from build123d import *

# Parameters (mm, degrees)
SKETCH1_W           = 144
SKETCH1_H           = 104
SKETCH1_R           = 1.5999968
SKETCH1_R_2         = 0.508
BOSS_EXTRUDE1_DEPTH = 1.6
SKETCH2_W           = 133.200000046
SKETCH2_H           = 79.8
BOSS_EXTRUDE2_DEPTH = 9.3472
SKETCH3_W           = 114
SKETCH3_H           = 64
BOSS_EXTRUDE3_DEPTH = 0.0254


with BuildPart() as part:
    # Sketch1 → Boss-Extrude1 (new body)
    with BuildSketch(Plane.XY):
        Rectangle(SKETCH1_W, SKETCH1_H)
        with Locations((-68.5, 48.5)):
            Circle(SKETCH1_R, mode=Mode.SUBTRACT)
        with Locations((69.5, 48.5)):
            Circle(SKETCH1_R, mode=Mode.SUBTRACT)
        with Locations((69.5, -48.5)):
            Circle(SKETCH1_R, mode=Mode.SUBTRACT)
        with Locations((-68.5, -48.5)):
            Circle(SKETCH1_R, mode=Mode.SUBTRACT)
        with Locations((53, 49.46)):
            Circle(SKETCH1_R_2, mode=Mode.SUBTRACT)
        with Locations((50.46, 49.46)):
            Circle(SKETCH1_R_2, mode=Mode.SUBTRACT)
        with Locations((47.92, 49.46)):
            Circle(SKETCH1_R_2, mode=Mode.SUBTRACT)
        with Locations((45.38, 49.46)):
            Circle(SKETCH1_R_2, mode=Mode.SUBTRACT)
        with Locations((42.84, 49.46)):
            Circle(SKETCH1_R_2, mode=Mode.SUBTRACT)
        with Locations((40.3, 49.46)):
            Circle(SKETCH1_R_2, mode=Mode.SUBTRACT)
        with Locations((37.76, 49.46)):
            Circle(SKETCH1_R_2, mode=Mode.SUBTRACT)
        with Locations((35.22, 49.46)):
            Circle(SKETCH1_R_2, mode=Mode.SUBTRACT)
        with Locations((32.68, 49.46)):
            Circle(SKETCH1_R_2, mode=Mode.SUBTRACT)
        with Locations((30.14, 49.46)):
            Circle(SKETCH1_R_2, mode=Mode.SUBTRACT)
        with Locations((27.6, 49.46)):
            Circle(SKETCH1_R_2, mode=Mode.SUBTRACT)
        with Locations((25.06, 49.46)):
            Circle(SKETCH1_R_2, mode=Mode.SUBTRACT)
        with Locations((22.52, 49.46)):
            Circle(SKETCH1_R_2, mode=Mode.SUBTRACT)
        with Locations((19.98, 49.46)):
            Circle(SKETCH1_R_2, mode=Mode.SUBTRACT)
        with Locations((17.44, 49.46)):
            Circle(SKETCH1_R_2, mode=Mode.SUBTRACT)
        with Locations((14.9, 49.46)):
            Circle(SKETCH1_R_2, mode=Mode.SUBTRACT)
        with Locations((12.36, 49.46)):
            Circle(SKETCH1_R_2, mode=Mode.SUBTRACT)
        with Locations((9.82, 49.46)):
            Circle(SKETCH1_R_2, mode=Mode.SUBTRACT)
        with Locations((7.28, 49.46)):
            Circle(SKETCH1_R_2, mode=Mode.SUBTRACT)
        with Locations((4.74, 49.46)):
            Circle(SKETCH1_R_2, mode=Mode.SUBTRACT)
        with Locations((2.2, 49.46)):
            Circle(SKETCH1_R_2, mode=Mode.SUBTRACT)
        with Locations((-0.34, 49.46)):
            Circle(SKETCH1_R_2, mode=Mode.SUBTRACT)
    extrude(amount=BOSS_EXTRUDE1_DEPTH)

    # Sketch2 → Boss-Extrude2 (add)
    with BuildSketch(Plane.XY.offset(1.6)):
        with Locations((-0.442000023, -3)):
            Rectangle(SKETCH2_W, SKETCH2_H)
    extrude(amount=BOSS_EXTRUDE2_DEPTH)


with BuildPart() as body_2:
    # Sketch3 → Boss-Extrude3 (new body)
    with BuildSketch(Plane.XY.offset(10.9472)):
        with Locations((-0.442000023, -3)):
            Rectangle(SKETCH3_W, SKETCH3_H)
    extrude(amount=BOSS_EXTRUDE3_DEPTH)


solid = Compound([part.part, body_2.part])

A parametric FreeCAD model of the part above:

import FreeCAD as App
import Part
import Sketcher

doc = App.newDocument("Part")
body = doc.addObject("PartDesign::Body", "Body")

# Sketch on XY plane
sketch1 = body.newObject("Sketcher::SketchObject", "Sketch")
sketch1.AttachmentSupport = (doc.getObject("XY_Plane"), [""])
sketch1.MapMode = "FlatFace"
sketch1.addGeometry([
    Part.LineSegment(App.Vector(-72, 52, 0), App.Vector(-72, -52, 0)),  # 0
    Part.LineSegment(App.Vector(-72, -52, 0), App.Vector(72, -52, 0)),  # 1
    Part.LineSegment(App.Vector(72, -52, 0), App.Vector(72, 52, 0)),  # 2
    Part.LineSegment(App.Vector(72, 52, 0), App.Vector(-72, 52, 0)),  # 3
    Part.Circle(App.Vector(-68.5, -48.5, 0), App.Vector(0, 0, 1), 1.6),  # 4
    Part.Circle(App.Vector(69.5, -48.5, 0), App.Vector(0, 0, 1), 1.6),  # 5
    Part.Circle(App.Vector(-68.5, 48.5, 0), App.Vector(0, 0, 1), 1.6),  # 6
    Part.Circle(App.Vector(-0.3, 49.5, 0), App.Vector(0, 0, 1), 0.5),  # 7
    Part.Circle(App.Vector(2.2, 49.5, 0), App.Vector(0, 0, 1), 0.5),  # 8
    Part.Circle(App.Vector(4.7, 49.5, 0), App.Vector(0, 0, 1), 0.5),  # 9
    Part.Circle(App.Vector(7.3, 49.5, 0), App.Vector(0, 0, 1), 0.5),  # 10
    Part.Circle(App.Vector(9.8, 49.5, 0), App.Vector(0, 0, 1), 0.5),  # 11
    Part.Circle(App.Vector(12.4, 49.5, 0), App.Vector(0, 0, 1), 0.5),  # 12
    Part.Circle(App.Vector(14.9, 49.5, 0), App.Vector(0, 0, 1), 0.5),  # 13
    Part.Circle(App.Vector(17.4, 49.5, 0), App.Vector(0, 0, 1), 0.5),  # 14
    Part.Circle(App.Vector(20, 49.5, 0), App.Vector(0, 0, 1), 0.5),  # 15
    Part.Circle(App.Vector(22.5, 49.5, 0), App.Vector(0, 0, 1), 0.5),  # 16
    Part.Circle(App.Vector(25.1, 49.5, 0), App.Vector(0, 0, 1), 0.5),  # 17
    Part.Circle(App.Vector(27.6, 49.5, 0), App.Vector(0, 0, 1), 0.5),  # 18
    Part.Circle(App.Vector(30.1, 49.5, 0), App.Vector(0, 0, 1), 0.5),  # 19
    Part.Circle(App.Vector(32.7, 49.5, 0), App.Vector(0, 0, 1), 0.5),  # 20
    Part.Circle(App.Vector(35.2, 49.5, 0), App.Vector(0, 0, 1), 0.5),  # 21
    Part.Circle(App.Vector(37.8, 49.5, 0), App.Vector(0, 0, 1), 0.5),  # 22
    Part.Circle(App.Vector(40.3, 49.5, 0), App.Vector(0, 0, 1), 0.5),  # 23
    Part.Circle(App.Vector(42.8, 49.5, 0), App.Vector(0, 0, 1), 0.5),  # 24
    Part.Circle(App.Vector(45.4, 49.5, 0), App.Vector(0, 0, 1), 0.5),  # 25
    Part.Circle(App.Vector(47.9, 49.5, 0), App.Vector(0, 0, 1), 0.5),  # 26
    Part.Circle(App.Vector(50.5, 49.5, 0), App.Vector(0, 0, 1), 0.5),  # 27
    Part.Circle(App.Vector(53, 49.5, 0), App.Vector(0, 0, 1), 0.5),  # 28
    Part.Circle(App.Vector(69.5, 48.5, 0), App.Vector(0, 0, 1), 1.6),  # 29
], False)
sketch1.addConstraint([
    Sketcher.Constraint("Coincident", 0, 2, 1, 1),
    Sketcher.Constraint("Coincident", 1, 2, 2, 1),
    Sketcher.Constraint("Coincident", 2, 2, 3, 1),
    Sketcher.Constraint("Coincident", 3, 2, 0, 1),
    Sketcher.Constraint("Vertical", 0),
    Sketcher.Constraint("Horizontal", 1),
    Sketcher.Constraint("Vertical", 2),
    Sketcher.Constraint("Horizontal", 3),
    Sketcher.Constraint("Equal", 4, 5),
    Sketcher.Constraint("Equal", 5, 6),
    Sketcher.Constraint("Equal", 7, 8),
    Sketcher.Constraint("Equal", 8, 9),
    Sketcher.Constraint("Equal", 9, 10),
    Sketcher.Constraint("Equal", 10, 11),
    Sketcher.Constraint("Equal", 11, 12),
    Sketcher.Constraint("Equal", 12, 13),
    Sketcher.Constraint("Equal", 13, 14),
    Sketcher.Constraint("Equal", 14, 15),
    Sketcher.Constraint("Equal", 15, 16),
    Sketcher.Constraint("Equal", 16, 17),
    Sketcher.Constraint("Equal", 17, 18),
    Sketcher.Constraint("Equal", 18, 19),
    Sketcher.Constraint("Equal", 19, 20),
    Sketcher.Constraint("Equal", 20, 21),
    Sketcher.Constraint("Equal", 21, 22),
    Sketcher.Constraint("Equal", 22, 23),
    Sketcher.Constraint("Equal", 23, 24),
    Sketcher.Constraint("Equal", 24, 25),
    Sketcher.Constraint("Equal", 25, 26),
    Sketcher.Constraint("Equal", 26, 27),
    Sketcher.Constraint("Equal", 27, 28),
    Sketcher.Constraint("Equal", 6, 29),
    Sketcher.Constraint("Symmetric", 0, 2, 2, 2, -1, 1),
    Sketcher.Constraint("Symmetric", 4, 3, 6, 3, -1),
    Sketcher.Constraint("Symmetric", 5, 3, 29, 3, -1),
    Sketcher.Constraint("Horizontal", 4, 3, 5, 3),
    Sketcher.Constraint("Horizontal", 7, 3, 8, 3),
    Sketcher.Constraint("Horizontal", 8, 3, 9, 3),
    Sketcher.Constraint("Horizontal", 9, 3, 10, 3),
    Sketcher.Constraint("Horizontal", 10, 3, 11, 3),
    Sketcher.Constraint("Horizontal", 11, 3, 12, 3),
    Sketcher.Constraint("Horizontal", 12, 3, 13, 3),
    Sketcher.Constraint("Horizontal", 13, 3, 14, 3),
    Sketcher.Constraint("Horizontal", 14, 3, 15, 3),
    Sketcher.Constraint("Horizontal", 15, 3, 16, 3),
    Sketcher.Constraint("Horizontal", 16, 3, 17, 3),
    Sketcher.Constraint("Horizontal", 17, 3, 18, 3),
    Sketcher.Constraint("Horizontal", 18, 3, 19, 3),
    Sketcher.Constraint("Horizontal", 19, 3, 20, 3),
    Sketcher.Constraint("Horizontal", 20, 3, 21, 3),
    Sketcher.Constraint("Horizontal", 21, 3, 22, 3),
    Sketcher.Constraint("Horizontal", 22, 3, 23, 3),
    Sketcher.Constraint("Horizontal", 23, 3, 24, 3),
    Sketcher.Constraint("Horizontal", 24, 3, 25, 3),
    Sketcher.Constraint("Horizontal", 25, 3, 26, 3),
    Sketcher.Constraint("Horizontal", 26, 3, 27, 3),
    Sketcher.Constraint("Horizontal", 27, 3, 28, 3),
    Sketcher.Constraint("DistanceX", 1, 1, 1, 2, 144.0),
    Sketcher.Constraint("DistanceY", 0, 2, 0, 1, 104.0),
    Sketcher.Constraint("Diameter", 7, 1.016),
    Sketcher.Constraint("DistanceX", -1, 1, 28, 3, 53.0),
    Sketcher.Constraint("DistanceX", 4, 3, 5, 3, 138.0),
    Sketcher.Constraint("DistanceY", 4, 3, 6, 3, 97.0),
    Sketcher.Constraint("DistanceX", 4, 3, -1, 1, 68.5),
    Sketcher.Constraint("DistanceX", -1, 1, 8, 3, 2.2),
    Sketcher.Constraint("DistanceX", -1, 1, 13, 3, 14.9),
    Sketcher.Constraint("DistanceX", -1, 1, 18, 3, 27.6),
    Sketcher.Constraint("DistanceX", -1, 1, 23, 3, 40.3),
    Sketcher.Constraint("DistanceX", 7, 3, 12, 3, 12.7),
    Sketcher.Constraint("DistanceX", 9, 3, 14, 3, 12.7),
    Sketcher.Constraint("DistanceX", 10, 3, 15, 3, 12.7),
    Sketcher.Constraint("DistanceX", 11, 3, 16, 3, 12.7),
    Sketcher.Constraint("DistanceX", 12, 3, 17, 3, 12.7),
    Sketcher.Constraint("DistanceX", 14, 3, 19, 3, 12.7),
    Sketcher.Constraint("DistanceX", 15, 3, 20, 3, 12.7),
    Sketcher.Constraint("DistanceX", 16, 3, 21, 3, 12.7),
    Sketcher.Constraint("DistanceX", 17, 3, 22, 3, 12.7),
    Sketcher.Constraint("DistanceX", 19, 3, 24, 3, 12.7),
    Sketcher.Constraint("DistanceX", 20, 3, 25, 3, 12.7),
    Sketcher.Constraint("DistanceX", 21, 3, 26, 3, 12.7),
    Sketcher.Constraint("DistanceX", 22, 3, 27, 3, 12.7),
    Sketcher.Constraint("DistanceX", 7, 3, -1, 1, 0.34),
    Sketcher.Constraint("DistanceY", -1, 1, 7, 3, 49.46),
    Sketcher.Constraint("DistanceX", -1, 1, 9, 3, 4.74),
    Sketcher.Constraint("DistanceX", -1, 1, 10, 3, 7.28),
    Sketcher.Constraint("DistanceX", -1, 1, 11, 3, 9.82),
    Sketcher.Constraint("Diameter", 4, 3.199994),
])
pad1 = body.newObject("PartDesign::Pad", "Pad")
pad1.Profile = sketch1
pad1.Length = 1.6

# Sketch on XY plane
sketch2 = body.newObject("Sketcher::SketchObject", "Sketch001")
sketch2.AttachmentSupport = (doc.getObject("XY_Plane"), [""])
sketch2.MapMode = "FlatFace"
sketch2.AttachmentOffset = App.Placement(App.Vector(0, 0, 1.6), App.Rotation())
sketch2.addGeometry([
    Part.LineSegment(App.Vector(-67, 37, 0), App.Vector(-67, -43, 0)),
    Part.LineSegment(App.Vector(-67, -43, 0), App.Vector(66, -43, 0)),
    Part.LineSegment(App.Vector(66, -43, 0), App.Vector(66, 37, 0)),
    Part.LineSegment(App.Vector(66, 37, 0), App.Vector(-67, 37, 0)),
], False)
sketch2.addConstraint([
    Sketcher.Constraint("Coincident", 0, 2, 1, 1),
    Sketcher.Constraint("Coincident", 1, 2, 2, 1),
    Sketcher.Constraint("Coincident", 2, 2, 3, 1),
    Sketcher.Constraint("Coincident", 3, 2, 0, 1),
    Sketcher.Constraint("Vertical", 0),
    Sketcher.Constraint("Horizontal", 1),
    Sketcher.Constraint("Vertical", 2),
    Sketcher.Constraint("Horizontal", 3),
    Sketcher.Constraint("DistanceX", 1, 1, 1, 2, 133.2),
    Sketcher.Constraint("DistanceY", 0, 2, 0, 1, 79.8),
    Sketcher.Constraint("DistanceY", 0, 2, -1, 1, 42.9),
    Sketcher.Constraint("DistanceX", 0, 2, -1, 1, 67.042),
])
pad2 = body.newObject("PartDesign::Pad", "Pad001")
pad2.Profile = sketch2
pad2.Length = 9.3472
body2 = doc.addObject("PartDesign::Body", "Body001")

# Sketch on XY plane
sketch3 = body2.newObject("Sketcher::SketchObject", "Sketch002")
sketch3.AttachmentSupport = (doc.getObject("XY_Plane001"), [""])
sketch3.MapMode = "FlatFace"
sketch3.AttachmentOffset = App.Placement(App.Vector(0, 0, 10.9472), App.Rotation())
sketch3.addGeometry([
    Part.LineSegment(App.Vector(-57, 29, 0), App.Vector(-57, -35, 0)),
    Part.LineSegment(App.Vector(-57, -35, 0), App.Vector(57, -35, 0)),
    Part.LineSegment(App.Vector(57, -35, 0), App.Vector(57, 29, 0)),
    Part.LineSegment(App.Vector(57, 29, 0), App.Vector(-57, 29, 0)),
], False)
sketch3.addConstraint([
    Sketcher.Constraint("Coincident", 0, 2, 1, 1),
    Sketcher.Constraint("Coincident", 1, 2, 2, 1),
    Sketcher.Constraint("Coincident", 2, 2, 3, 1),
    Sketcher.Constraint("Coincident", 3, 2, 0, 1),
    Sketcher.Constraint("Vertical", 0),
    Sketcher.Constraint("Horizontal", 1),
    Sketcher.Constraint("Vertical", 2),
    Sketcher.Constraint("Horizontal", 3),
    Sketcher.Constraint("DistanceX", 1, 1, 1, 2, 114.0),
    Sketcher.Constraint("DistanceY", 0, 2, 0, 1, 64.0),
    Sketcher.Constraint("DistanceY", 0, 2, -1, 1, 35.0),
    Sketcher.Constraint("DistanceX", 0, 2, -1, 1, 57.442),
])
pad3 = body2.newObject("PartDesign::Pad", "Pad002")
pad3.Profile = sketch3
pad3.Length = 0.0254

doc.recompute()
